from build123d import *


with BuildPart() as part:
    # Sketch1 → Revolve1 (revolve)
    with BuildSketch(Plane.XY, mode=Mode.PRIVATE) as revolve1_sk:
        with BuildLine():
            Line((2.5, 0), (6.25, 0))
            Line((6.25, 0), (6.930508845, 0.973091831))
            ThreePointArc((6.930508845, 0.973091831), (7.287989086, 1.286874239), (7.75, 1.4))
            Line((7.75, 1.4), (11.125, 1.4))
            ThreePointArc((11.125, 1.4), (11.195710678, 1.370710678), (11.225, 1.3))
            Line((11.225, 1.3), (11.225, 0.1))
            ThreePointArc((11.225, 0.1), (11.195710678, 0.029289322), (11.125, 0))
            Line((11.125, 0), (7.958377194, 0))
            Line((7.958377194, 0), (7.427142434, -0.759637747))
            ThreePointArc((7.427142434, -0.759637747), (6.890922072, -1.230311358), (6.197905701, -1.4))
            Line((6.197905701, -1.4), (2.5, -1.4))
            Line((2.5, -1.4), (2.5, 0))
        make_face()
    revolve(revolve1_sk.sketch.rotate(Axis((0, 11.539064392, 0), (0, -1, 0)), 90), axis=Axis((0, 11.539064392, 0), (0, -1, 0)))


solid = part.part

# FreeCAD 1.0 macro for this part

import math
import FreeCAD as App
import Part
import Sketcher
from FreeCAD import Vector

doc = App.newDocument("Part")
body = doc.addObject("PartDesign::Body", "Body")

sketch1 = body.newObject("Sketcher::SketchObject", "Sketch")
sketch1.AttachmentSupport = (doc.getObject("XY_Plane"), [""])
sketch1.MapMode = "FlatFace"
sketch1.addGeometry([
    Part.LineSegment(Vector(6.25, 0, 0), Vector(2.5, 0, 0)),
    Part.LineSegment(Vector(2.5, 0, 0), Vector(2.5, -1.4, 0)),
    Part.LineSegment(Vector(2.5, -1.4, 0), Vector(6.2, -1.4, 0)),
    Part.ArcOfCircle(Part.Circle(Vector(6.2, 0.1, 0), Vector(0, 0, 1), 1.5), math.radians(-90), math.radians(-35)),
    Part.LineSegment(Vector(7.43, -0.76, 0), Vector(7.96, 0, 0)),
    Part.LineSegment(Vector(7.96, 0, 0), Vector(11.12, 0, 0)),
    Part.ArcOfCircle(Part.Circle(Vector(11.12, 0.1, 0), Vector(0, 0, 1), 0.1), math.radians(-90), math.radians(0)),
    Part.LineSegment(Vector(11.22, 0.1, 0), Vector(11.22, 1.3, 0)),
    Part.ArcOfCircle(Part.Circle(Vector(11.12, 1.3, 0), Vector(0, 0, 1), 0.1), math.radians(0), math.radians(90)),
    Part.LineSegment(Vector(11.12, 1.4, 0), Vector(7.75, 1.4, 0)),
    Part.ArcOfCircle(Part.Circle(Vector(7.75, 0.4, 0), Vector(0, 0, 1), 1), math.radians(90), math.radians(145)),
    Part.LineSegment(Vector(6.93, 0.97, 0), Vector(6.25, 0, 0)),
], False)
sketch1.addConstraint([
    Sketcher.Constraint("Coincident", 0, 2, 1, 1),
    Sketcher.Constraint("Coincident", 1, 2, 2, 1),
    Sketcher.Constraint("Tangent", 2, 2, 3, 1),
    Sketcher.Constraint("Tangent", 3, 2, 4, 1),
    Sketcher.Constraint("Coincident", 4, 2, 5, 1),
    Sketcher.Constraint("Tangent", 5, 2, 6, 1),
    Sketcher.Constraint("Tangent", 6, 2, 7, 1),
    Sketcher.Constraint("Tangent", 7, 2, 8, 1),
    Sketcher.Constraint("Tangent", 8, 2, 9, 1),
    Sketcher.Constraint("Tangent", 9, 2, 10, 1),
    Sketcher.Constraint("Tangent", 10, 2, 11, 1),
    Sketcher.Constraint("Coincident", 11, 2, 0, 1),
    Sketcher.Constraint("Horizontal", 0),
    Sketcher.Constraint("Vertical", 1),
    Sketcher.Constraint("Horizontal", 2),
    Sketcher.Constraint("Horizontal", 5),
    Sketcher.Constraint("Vertical", 7),
    Sketcher.Constraint("Horizontal", 9),
    Sketcher.Constraint("Equal", 6, 8),
    Sketcher.Constraint("PointOnObject", 0, 2, -1),
    Sketcher.Constraint("PointOnObject", 4, 2, -1),
    Sketcher.Constraint("Parallel", 4, 11),
    Sketcher.Constraint("Horizontal", 3, 3, 6, 3),
    Sketcher.Constraint("Radius", 10, 1.0),
    Sketcher.Constraint("Radius", 3, 1.5),
    Sketcher.Constraint("Radius", 6, 0.1),
    Sketcher.Constraint("DistanceY", 7, 1, 7, 2, 1.2),
    Sketcher.Constraint("DistanceX", 0, 2, 0, 1, 3.75),
    Sketcher.Constraint("DistanceX", -1, 1, 0, 2, 2.5),
    Sketcher.Constraint("DistanceX", 11, 2, 10, 3, 1.5),
    Sketcher.Constraint("DistanceX", 9, 2, 9, 1, 3.375),
    Sketcher.Constraint("DistanceX", 2, 1, 2, 2, 3.697906),
])
revolution = body.newObject("PartDesign::Revolution", "Revolution")
revolution.Profile = sketch1
revolution.ReferenceAxis = (sketch1, ["V_Axis"])
revolution.Angle = 360

doc.recompute()
